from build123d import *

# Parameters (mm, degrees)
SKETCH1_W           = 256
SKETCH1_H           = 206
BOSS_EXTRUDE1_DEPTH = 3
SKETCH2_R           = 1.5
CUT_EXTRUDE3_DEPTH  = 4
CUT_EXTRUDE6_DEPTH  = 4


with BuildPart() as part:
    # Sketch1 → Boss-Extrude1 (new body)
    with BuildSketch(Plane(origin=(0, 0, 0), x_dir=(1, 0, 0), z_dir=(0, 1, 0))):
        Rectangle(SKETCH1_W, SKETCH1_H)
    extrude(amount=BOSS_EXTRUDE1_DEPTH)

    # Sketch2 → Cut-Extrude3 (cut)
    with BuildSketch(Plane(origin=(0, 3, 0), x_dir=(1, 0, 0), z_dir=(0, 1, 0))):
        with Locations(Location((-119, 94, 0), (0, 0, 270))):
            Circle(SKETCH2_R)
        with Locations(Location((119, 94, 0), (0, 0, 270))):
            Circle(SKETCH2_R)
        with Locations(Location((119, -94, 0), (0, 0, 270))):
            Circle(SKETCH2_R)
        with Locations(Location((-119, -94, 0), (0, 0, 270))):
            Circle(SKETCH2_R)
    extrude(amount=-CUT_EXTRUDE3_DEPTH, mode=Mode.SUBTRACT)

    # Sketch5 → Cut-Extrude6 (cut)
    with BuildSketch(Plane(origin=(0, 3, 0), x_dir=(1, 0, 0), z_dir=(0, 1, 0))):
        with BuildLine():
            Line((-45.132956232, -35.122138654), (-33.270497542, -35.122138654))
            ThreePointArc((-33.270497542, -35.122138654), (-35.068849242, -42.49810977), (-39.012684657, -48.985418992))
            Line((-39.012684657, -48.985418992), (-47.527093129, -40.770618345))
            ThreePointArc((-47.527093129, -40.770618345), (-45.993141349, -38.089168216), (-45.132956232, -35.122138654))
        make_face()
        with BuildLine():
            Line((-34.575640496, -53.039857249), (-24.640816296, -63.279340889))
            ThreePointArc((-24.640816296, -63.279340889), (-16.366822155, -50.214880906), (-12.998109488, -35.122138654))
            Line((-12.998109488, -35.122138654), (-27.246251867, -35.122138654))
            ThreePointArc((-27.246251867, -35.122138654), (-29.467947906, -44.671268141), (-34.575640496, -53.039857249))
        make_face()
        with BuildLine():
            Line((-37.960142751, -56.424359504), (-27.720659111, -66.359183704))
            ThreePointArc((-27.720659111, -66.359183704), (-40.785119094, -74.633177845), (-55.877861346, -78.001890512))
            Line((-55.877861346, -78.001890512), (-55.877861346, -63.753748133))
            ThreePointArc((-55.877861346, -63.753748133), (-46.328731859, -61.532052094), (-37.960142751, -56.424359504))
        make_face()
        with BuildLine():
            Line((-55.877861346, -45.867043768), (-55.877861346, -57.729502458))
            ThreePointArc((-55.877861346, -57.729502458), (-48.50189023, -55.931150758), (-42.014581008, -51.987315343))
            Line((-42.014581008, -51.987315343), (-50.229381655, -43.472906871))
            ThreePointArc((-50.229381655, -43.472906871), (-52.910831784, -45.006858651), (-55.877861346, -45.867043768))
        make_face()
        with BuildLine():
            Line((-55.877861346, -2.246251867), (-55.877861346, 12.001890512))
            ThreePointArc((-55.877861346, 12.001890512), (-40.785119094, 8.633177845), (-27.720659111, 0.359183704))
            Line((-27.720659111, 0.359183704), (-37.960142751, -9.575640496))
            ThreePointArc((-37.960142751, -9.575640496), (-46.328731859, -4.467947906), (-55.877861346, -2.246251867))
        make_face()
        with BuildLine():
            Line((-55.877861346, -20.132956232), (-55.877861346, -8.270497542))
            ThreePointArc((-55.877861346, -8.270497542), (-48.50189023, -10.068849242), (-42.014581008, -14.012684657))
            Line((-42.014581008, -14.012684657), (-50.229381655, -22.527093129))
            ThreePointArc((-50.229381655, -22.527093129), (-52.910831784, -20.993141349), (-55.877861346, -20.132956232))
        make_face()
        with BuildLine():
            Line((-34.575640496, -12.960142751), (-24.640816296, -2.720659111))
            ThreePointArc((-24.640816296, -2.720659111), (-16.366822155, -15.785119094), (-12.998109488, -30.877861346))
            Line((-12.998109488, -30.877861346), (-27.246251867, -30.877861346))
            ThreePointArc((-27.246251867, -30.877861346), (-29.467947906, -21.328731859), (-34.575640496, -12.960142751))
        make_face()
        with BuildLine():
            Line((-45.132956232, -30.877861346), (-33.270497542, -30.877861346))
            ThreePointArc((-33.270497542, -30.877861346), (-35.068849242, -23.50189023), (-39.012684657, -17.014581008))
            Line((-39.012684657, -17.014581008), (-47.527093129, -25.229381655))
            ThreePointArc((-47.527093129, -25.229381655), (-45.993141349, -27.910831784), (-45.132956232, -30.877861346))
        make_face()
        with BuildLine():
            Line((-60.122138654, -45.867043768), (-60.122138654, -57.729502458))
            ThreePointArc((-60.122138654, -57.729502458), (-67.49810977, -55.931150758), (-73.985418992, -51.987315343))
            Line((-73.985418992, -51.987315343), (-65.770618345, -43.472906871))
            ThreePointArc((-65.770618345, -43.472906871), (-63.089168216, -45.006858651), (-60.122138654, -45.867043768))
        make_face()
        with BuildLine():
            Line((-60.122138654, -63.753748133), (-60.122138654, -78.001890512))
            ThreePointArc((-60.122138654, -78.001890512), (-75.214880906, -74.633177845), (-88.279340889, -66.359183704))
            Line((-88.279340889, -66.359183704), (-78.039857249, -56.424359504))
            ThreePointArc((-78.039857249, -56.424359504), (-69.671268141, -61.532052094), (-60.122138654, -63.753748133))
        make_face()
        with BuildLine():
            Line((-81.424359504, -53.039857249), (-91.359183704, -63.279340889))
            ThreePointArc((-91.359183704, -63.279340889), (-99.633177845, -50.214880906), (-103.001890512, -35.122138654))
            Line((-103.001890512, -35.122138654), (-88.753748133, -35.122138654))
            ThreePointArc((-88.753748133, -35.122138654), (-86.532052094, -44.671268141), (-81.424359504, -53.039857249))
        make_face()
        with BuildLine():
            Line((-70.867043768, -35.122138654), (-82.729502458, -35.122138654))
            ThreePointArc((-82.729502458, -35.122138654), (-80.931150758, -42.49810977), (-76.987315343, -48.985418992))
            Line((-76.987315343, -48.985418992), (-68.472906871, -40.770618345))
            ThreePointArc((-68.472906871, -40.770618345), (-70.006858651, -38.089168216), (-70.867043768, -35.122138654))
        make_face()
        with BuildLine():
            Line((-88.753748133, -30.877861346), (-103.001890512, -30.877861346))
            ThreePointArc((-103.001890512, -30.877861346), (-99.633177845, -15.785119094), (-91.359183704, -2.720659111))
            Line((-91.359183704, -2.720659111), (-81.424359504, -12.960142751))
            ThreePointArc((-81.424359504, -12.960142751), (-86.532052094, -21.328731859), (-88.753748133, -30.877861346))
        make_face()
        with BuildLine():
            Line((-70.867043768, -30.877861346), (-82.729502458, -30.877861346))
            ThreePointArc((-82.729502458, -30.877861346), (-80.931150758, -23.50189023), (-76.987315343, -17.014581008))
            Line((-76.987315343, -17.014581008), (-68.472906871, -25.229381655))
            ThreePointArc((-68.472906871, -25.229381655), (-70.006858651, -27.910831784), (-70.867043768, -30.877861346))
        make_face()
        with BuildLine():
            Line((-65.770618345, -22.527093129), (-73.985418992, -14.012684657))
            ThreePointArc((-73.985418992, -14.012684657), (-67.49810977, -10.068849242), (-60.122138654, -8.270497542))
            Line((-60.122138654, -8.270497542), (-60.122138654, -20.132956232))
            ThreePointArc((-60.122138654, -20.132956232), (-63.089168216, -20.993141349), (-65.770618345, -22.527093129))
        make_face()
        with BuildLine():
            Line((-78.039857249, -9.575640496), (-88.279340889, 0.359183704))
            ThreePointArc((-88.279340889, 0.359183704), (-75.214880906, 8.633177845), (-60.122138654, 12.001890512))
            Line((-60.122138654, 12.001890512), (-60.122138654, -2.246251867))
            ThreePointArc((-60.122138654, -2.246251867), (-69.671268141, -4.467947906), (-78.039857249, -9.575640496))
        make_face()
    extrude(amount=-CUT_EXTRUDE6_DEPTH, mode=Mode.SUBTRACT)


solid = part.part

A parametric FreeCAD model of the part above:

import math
import FreeCAD as App
import Part
import Sketcher

V = App.Vector

doc = App.newDocument("Part")
body = doc.addObject("PartDesign::Body", "Body")

# Sketch on XZ plane
sketch1 = body.newObject("Sketcher::SketchObject", "Sketch")
sketch1.AttachmentSupport = (doc.getObject("XZ_Plane"), [""])
sketch1.MapMode = "FlatFace"
sketch1.addGeometry(Part.LineSegment(V(-128, -103, 0), V(-128, 103, 0)), False)
sketch1.addGeometry(Part.LineSegment(V(-128, 103, 0), V(128, 103, 0)), False)
sketch1.addGeometry(Part.LineSegment(V(128, 103, 0), V(128, -103, 0)), False)
sketch1.addGeometry(Part.LineSegment(V(128, -103, 0), V(-128, -103, 0)), False)
sketch1.addConstraint(Sketcher.Constraint("Coincident", 0, 2, 1, 1))
sketch1.addConstraint(Sketcher.Constraint("Coincident", 1, 2, 2, 1))
sketch1.addConstraint(Sketcher.Constraint("Coincident", 2, 2, 3, 1))
sketch1.addConstraint(Sketcher.Constraint("Coincident", 3, 2, 0, 1))
sketch1.addConstraint(Sketcher.Constraint("Vertical", 0))
sketch1.addConstraint(Sketcher.Constraint("Horizontal", 1))
sketch1.addConstraint(Sketcher.Constraint("Vertical", 2))
sketch1.addConstraint(Sketcher.Constraint("Horizontal", 3))
sketch1.addConstraint(Sketcher.Constraint("Symmetric", 0, 2, 2, 2, -1, 1))
sketch1.addConstraint(Sketcher.Constraint("DistanceX", 1, 1, 1, 2, 256.0))
sketch1.addConstraint(Sketcher.Constraint("DistanceY", 0, 1, 0, 2, 206.0))
pad1 = body.newObject("PartDesign::Pad", "Pad")
pad1.Profile = sketch1
pad1.Length = 3
pad1.Reversed = True

# Sketch on XZ plane
sketch2 = body.newObject("Sketcher::SketchObject", "Sketch001")
sketch2.AttachmentSupport = (doc.getObject("XZ_Plane"), [""])
sketch2.MapMode = "FlatFace"
sketch2.AttachmentOffset = App.Placement(V(0, 0, -3), App.Rotation())
sketch2.addGeometry(Part.Circle(V(-119, -94, 0), V(0, 0, 1), 1.5), False)
sketch2.addGeometry(Part.Circle(V(119, -94, 0), V(0, 0, 1), 1.5), False)
sketch2.addGeometry(Part.Circle(V(119, 94, 0), V(0, 0, 1), 1.5), False)
sketch2.addGeometry(Part.Circle(V(-119, 94, 0), V(0, 0, 1), 1.5), False)
sketch2.addConstraint(Sketcher.Constraint("Equal", 0, 1))
sketch2.addConstraint(Sketcher.Constraint("Equal", 1, 2))
sketch2.addConstraint(Sketcher.Constraint("Equal", 2, 3))
sketch2.addConstraint(Sketcher.Constraint("Symmetric", 0, 3, 2, 3, -1, 1))
sketch2.addConstraint(Sketcher.Constraint("Symmetric", 1, 3, 3, 3, -1, 1))
sketch2.addConstraint(Sketcher.Constraint("Symmetric", 0, 3, 1, 3, -2))
sketch2.addConstraint(Sketcher.Constraint("Diameter", 0, 3.0))
sketch2.addConstraint(Sketcher.Constraint("DistanceX", 0, 3, -1, 1, 119.0))
sketch2.addConstraint(Sketcher.Constraint("DistanceY", 0, 3, -1, 1, 94.0))
pocket1 = body.newObject("PartDesign::Pocket", "Pocket")
pocket1.Profile = sketch2
pocket1.Length = 4
pocket1.Reversed = True

# Sketch on XZ plane
sketch3 = body.newObject("Sketcher::SketchObject", "Sketch002")
sketch3.AttachmentSupport = (doc.getObject("XZ_Plane"), [""])
sketch3.MapMode = "FlatFace"
sketch3.AttachmentOffset = App.Placement(V(0, 0, -3), App.Rotation())
sketch3.addGeometry(Part.LineSegment(V(-33, 35, 0), V(-45, 35, 0)), False)
sketch3.addGeometry(Part.ArcOfCircle(Part.Circle(V(-58, 33, 0), V(0, 0, 1), 13), math.radians(9), math.radians(37)), False)
sketch3.addGeometry(Part.LineSegment(V(-48, 41, 0), V(-39, 49, 0)), False)
sketch3.addGeometry(Part.ArcOfCircle(Part.Circle(V(-58, 33, 0), V(0, 0, 1), 25), math.radians(5), math.radians(40)), False)
sketch3.addGeometry(Part.LineSegment(V(-35, 53, 0), V(-25, 63, 0)), False)
sketch3.addGeometry(Part.ArcOfCircle(Part.Circle(V(-58, 33, 0), V(0, 0, 1), 45), math.radians(3), math.radians(42)), False)
sketch3.addGeometry(Part.LineSegment(V(-13, 35, 0), V(-27, 35, 0)), False)
sketch3.addGeometry(Part.ArcOfCircle(Part.Circle(V(-58, 33, 0), V(0, 0, 1), 31), math.radians(4), math.radians(41)), False)
sketch3.addGeometry(Part.LineSegment(V(-28, 66, 0), V(-38, 56, 0)), False)
sketch3.addGeometry(Part.ArcOfCircle(Part.Circle(V(-58, 33, 0), V(0, 0, 1), 31), math.radians(49), math.radians(86)), False)
sketch3.addGeometry(Part.LineSegment(V(-56, 64, 0), V(-56, 78, 0)), False)
sketch3.addGeometry(Part.ArcOfCircle(Part.Circle(V(-58, 33, 0), V(0, 0, 1), 45), math.radians(48), math.radians(87)), False)
sketch3.addGeometry(Part.LineSegment(V(-56, 46, 0), V(-56, 58, 0)), False)
sketch3.addGeometry(Part.ArcOfCircle(Part.Circle(V(-58, 33, 0), V(0, 0, 1), 25), math.radians(50), math.radians(85)), False)
sketch3.addGeometry(Part.LineSegment(V(-42, 52, 0), V(-50, 43, 0)), False)
sketch3.addGeometry(Part.ArcOfCircle(Part.Circle(V(-58, 33, 0), V(0, 0, 1), 13), math.radians(53), math.radians(81)), False)
sketch3.addGeometry(Part.LineSegment(V(-56, -12, 0), V(-56, 2, 0)), False)
sketch3.addGeometry(Part.ArcOfCircle(Part.Circle(V(-58, 33, 0), V(0, 0, 1), 31), math.radians(-86), math.radians(-49)), False)
sketch3.addGeometry(Part.LineSegment(V(-38, 10, 0), V(-28, 0, 0)), False)
sketch3.addGeometry(Part.ArcOfCircle(Part.Circle(V(-58, 33, 0), V(0, 0, 1), 45), math.radians(-87), math.radians(-48)), False)
sketch3.addGeometry(Part.LineSegment(V(-56, 8, 0), V(-56, 20, 0)), False)
sketch3.addGeometry(Part.ArcOfCircle(Part.Circle(V(-58, 33, 0), V(0, 0, 1), 13), math.radians(-81), math.radians(-53)), False)
sketch3.addGeometry(Part.LineSegment(V(-50, 23, 0), V(-42, 14, 0)), False)
sketch3.addGeometry(Part.ArcOfCircle(Part.Circle(V(-58, 33, 0), V(0, 0, 1), 25), math.radians(-85), math.radians(-50)), False)
sketch3.addGeometry(Part.LineSegment(V(-25, 3, 0), V(-35, 13, 0)), False)
sketch3.addGeometry(Part.ArcOfCircle(Part.Circle(V(-58, 33, 0), V(0, 0, 1), 31), math.radians(-41), math.radians(-4)), False)
sketch3.addGeometry(Part.LineSegment(V(-27, 31, 0), V(-13, 31, 0)), False)
sketch3.addGeometry(Part.ArcOfCircle(Part.Circle(V(-58, 33, 0), V(0, 0, 1), 45), math.radians(-42), math.radians(-3)), False)
sketch3.addGeometry(Part.LineSegment(V(-45, 31, 0), V(-33, 31, 0)), False)
sketch3.addGeometry(Part.ArcOfCircle(Part.Circle(V(-58, 33, 0), V(0, 0, 1), 25), math.radians(-40), math.radians(-5)), False)
sketch3.addGeometry(Part.LineSegment(V(-39, 17, 0), V(-48, 25, 0)), False)
sketch3.addGeometry(Part.ArcOfCircle(Part.Circle(V(-58, 33, 0), V(0, 0, 1), 13), math.radians(-37), math.radians(-9)), False)
sketch3.addGeometry(Part.LineSegment(V(-60, 58, 0), V(-60, 46, 0)), False)
sketch3.addGeometry(Part.ArcOfCircle(Part.Circle(V(-58, 33, 0), V(0, 0, 1), 13), math.radians(99), math.radians(127)), False)
sketch3.addGeometry(Part.LineSegment(V(-66, 43, 0), V(-74, 52, 0)), False)
sketch3.addGeometry(Part.ArcOfCircle(Part.Circle(V(-58, 33, 0), V(0, 0, 1), 25), math.radians(95), math.radians(130)), False)
sketch3.addGeometry(Part.LineSegment(V(-60, 78, 0), V(-60, 64, 0)), False)
sketch3.addGeometry(Part.ArcOfCircle(Part.Circle(V(-58, 33, 0), V(0, 0, 1), 31), math.radians(94), math.radians(131)), False)
sketch3.addGeometry(Part.LineSegment(V(-78, 56, 0), V(-88, 66, 0)), False)
sketch3.addGeometry(Part.ArcOfCircle(Part.Circle(V(-58, 33, 0), V(0, 0, 1), 45), math.radians(93), math.radians(132)), False)
sketch3.addGeometry(Part.LineSegment(V(-91, 63, 0), V(-81, 53, 0)), False)
sketch3.addGeometry(Part.ArcOfCircle(Part.Circle(V(-58, 33, 0), V(0, 0, 1), 31), math.radians(139), math.radians(176)), False)
sketch3.addGeometry(Part.LineSegment(V(-89, 35, 0), V(-103, 35, 0)), False)
sketch3.addGeometry(Part.ArcOfCircle(Part.Circle(V(-58, 33, 0), V(0, 0, 1), 45), math.radians(138), math.radians(177)), False)
sketch3.addGeometry(Part.LineSegment(V(-71, 35, 0), V(-83, 35, 0)), False)
sketch3.addGeometry(Part.ArcOfCircle(Part.Circle(V(-58, 33, 0), V(0, 0, 1), 25), math.radians(140), math.radians(175)), False)
sketch3.addGeometry(Part.LineSegment(V(-77, 49, 0), V(-68, 41, 0)), False)
sketch3.addGeometry(Part.ArcOfCircle(Part.Circle(V(-58, 33, 0), V(0, 0, 1), 13), math.radians(143), math.radians(171)), False)
sketch3.addGeometry(Part.LineSegment(V(-103, 31, 0), V(-89, 31, 0)), False)
sketch3.addGeometry(Part.ArcOfCircle(Part.Circle(V(-58, 33, 0), V(0, 0, 1), 31), math.radians(-176), math.radians(-139)), False)
sketch3.addGeometry(Part.LineSegment(V(-81, 13, 0), V(-91, 3, 0)), False)
sketch3.addGeometry(Part.ArcOfCircle(Part.Circle(V(-58, 33, 0), V(0, 0, 1), 45), math.radians(-177), math.radians(-138)), False)
sketch3.addGeometry(Part.LineSegment(V(-83, 31, 0), V(-71, 31, 0)), False)
sketch3.addGeometry(Part.ArcOfCircle(Part.Circle(V(-58, 33, 0), V(0, 0, 1), 13), math.radians(-171), math.radians(-143)), False)
sketch3.addGeometry(Part.LineSegment(V(-68, 25, 0), V(-77, 17, 0)), False)
sketch3.addGeometry(Part.ArcOfCircle(Part.Circle(V(-58, 33, 0), V(0, 0, 1), 25), math.radians(-175), math.radians(-140)), False)
sketch3.addGeometry(Part.LineSegment(V(-74, 14, 0), V(-66, 23, 0)), False)
sketch3.addGeometry(Part.ArcOfCircle(Part.Circle(V(-58, 33, 0), V(0, 0, 1), 13), math.radians(-127), math.radians(-99)), False)
sketch3.addGeometry(Part.LineSegment(V(-60, 20, 0), V(-60, 8, 0)), False)
sketch3.addGeometry(Part.ArcOfCircle(Part.Circle(V(-58, 33, 0), V(0, 0, 1), 25), math.radians(-130), math.radians(-95)), False)
sketch3.addGeometry(Part.LineSegment(V(-88, 0, 0), V(-78, 10, 0)), False)
sketch3.addGeometry(Part.ArcOfCircle(Part.Circle(V(-58, 33, 0), V(0, 0, 1), 31), math.radians(-131), math.radians(-94)), False)
sketch3.addGeometry(Part.LineSegment(V(-60, 2, 0), V(-60, -12, 0)), False)
sketch3.addGeometry(Part.ArcOfCircle(Part.Circle(V(-58, 33, 0), V(0, 0, 1), 45), math.radians(-132), math.radians(-93)), False)
sketch3.addConstraint(Sketcher.Constraint("Coincident", 0, 2, 1, 1))
sketch3.addConstraint(Sketcher.Constraint("Coincident", 1, 2, 2, 1))
sketch3.addConstraint(Sketcher.Constraint("Coincident", 2, 2, 3, 2))
sketch3.addConstraint(Sketcher.Constraint("Coincident", 3, 1, 0, 1))
sketch3.addConstraint(Sketcher.Constraint("Coincident", 4, 2, 5, 2))
sketch3.addConstraint(Sketcher.Constraint("Coincident", 5, 1, 6, 1))
sketch3.addConstraint(Sketcher.Constraint("Coincident", 6, 2, 7, 1))
sketch3.addConstraint(Sketcher.Constraint("Coincident", 7, 2, 4, 1))
sketch3.addConstraint(Sketcher.Constraint("Coincident", 8, 2, 9, 1))
sketch3.addConstraint(Sketcher.Constraint("Coincident", 9, 2, 10, 1))
sketch3.addConstraint(Sketcher.Constraint("Coincident", 10, 2, 11, 2))
sketch3.addConstraint(Sketcher.Constraint("Coincident", 11, 1, 8, 1))
sketch3.addConstraint(Sketcher.Constraint("Coincident", 12, 2, 13, 2))
sketch3.addConstraint(Sketcher.Constraint("Coincident", 13, 1, 14, 1))
sketch3.addConstraint(Sketcher.Constraint("Coincident", 14, 2, 15, 1))
sketch3.addConstraint(Sketcher.Constraint("Coincident", 15, 2, 12, 1))
sketch3.addConstraint(Sketcher.Constraint("Coincident", 16, 2, 17, 1))
sketch3.addConstraint(Sketcher.Constraint("Coincident", 17, 2, 18, 1))
sketch3.addConstraint(Sketcher.Constraint("Coincident", 18, 2, 19, 2))
sketch3.addConstraint(Sketcher.Constraint("Coincident", 19, 1, 16, 1))
sketch3.addConstraint(Sketcher.Constraint("Coincident", 20, 2, 21, 1))
sketch3.addConstraint(Sketcher.Constraint("Coincident", 21, 2, 22, 1))
sketch3.addConstraint(Sketcher.Constraint("Coincident", 22, 2, 23, 2))
sketch3.addConstraint(Sketcher.Constraint("Coincident", 23, 1, 20, 1))
sketch3.addConstraint(Sketcher.Constraint("Coincident", 24, 2, 25, 1))
sketch3.addConstraint(Sketcher.Constraint("Coincident", 25, 2, 26, 1))
sketch3.addConstraint(Sketcher.Constraint("Coincident", 26, 2, 27, 2))
sketch3.addConstraint(Sketcher.Constraint("Coincident", 27, 1, 24, 1))
sketch3.addConstraint(Sketcher.Constraint("Coincident", 28, 2, 29, 2))
sketch3.addConstraint(Sketcher.Constraint("Coincident", 29, 1, 30, 1))
sketch3.addConstraint(Sketcher.Constraint("Coincident", 30, 2, 31, 1))
sketch3.addConstraint(Sketcher.Constraint("Coincident", 31, 2, 28, 1))
sketch3.addConstraint(Sketcher.Constraint("Coincident", 32, 2, 33, 1))
sketch3.addConstraint(Sketcher.Constraint("Coincident", 33, 2, 34, 1))
sketch3.addConstraint(Sketcher.Constraint("Coincident", 34, 2, 35, 2))
sketch3.addConstraint(Sketcher.Constraint("Coincident", 35, 1, 32, 1))
sketch3.addConstraint(Sketcher.Constraint("Coincident", 36, 2, 37, 1))
sketch3.addConstraint(Sketcher.Constraint("Coincident", 37, 2, 38, 1))
sketch3.addConstraint(Sketcher.Constraint("Coincident", 38, 2, 39, 2))
sketch3.addConstraint(Sketcher.Constraint("Coincident", 39, 1, 36, 1))
sketch3.addConstraint(Sketcher.Constraint("Coincident", 40, 2, 41, 1))
sketch3.addConstraint(Sketcher.Constraint("Coincident", 41, 2, 42, 1))
sketch3.addConstraint(Sketcher.Constraint("Coincident", 42, 2, 43, 2))
sketch3.addConstraint(Sketcher.Constraint("Coincident", 43, 1, 40, 1))
sketch3.addConstraint(Sketcher.Constraint("Coincident", 44, 2, 45, 2))
sketch3.addConstraint(Sketcher.Constraint("Coincident", 45, 1, 46, 1))
sketch3.addConstraint(Sketcher.Constraint("Coincident", 46, 2, 47, 1))
sketch3.addConstraint(Sketcher.Constraint("Coincident", 47, 2, 44, 1))
sketch3.addConstraint(Sketcher.Constraint("Coincident", 48, 2, 49, 1))
sketch3.addConstraint(Sketcher.Constraint("Coincident", 49, 2, 50, 1))
sketch3.addConstraint(Sketcher.Constraint("Coincident", 50, 2, 51, 2))
sketch3.addConstraint(Sketcher.Constraint("Coincident", 51, 1, 48, 1))
sketch3.addConstraint(Sketcher.Constraint("Coincident", 52, 2, 53, 1))
sketch3.addConstraint(Sketcher.Constraint("Coincident", 53, 2, 54, 1))
sketch3.addConstraint(Sketcher.Constraint("Coincident", 54, 2, 55, 2))
sketch3.addConstraint(Sketcher.Constraint("Coincident", 55, 1, 52, 1))
sketch3.addConstraint(Sketcher.Constraint("Coincident", 56, 2, 57, 1))
sketch3.addConstraint(Sketcher.Constraint("Coincident", 57, 2, 58, 1))
sketch3.addConstraint(Sketcher.Constraint("Coincident", 58, 2, 59, 2))
sketch3.addConstraint(Sketcher.Constraint("Coincident", 59, 1, 56, 1))
sketch3.addConstraint(Sketcher.Constraint("Coincident", 60, 2, 61, 1))
sketch3.addConstraint(Sketcher.Constraint("Coincident", 61, 2, 62, 1))
sketch3.addConstraint(Sketcher.Constraint("Coincident", 62, 2, 63, 2))
sketch3.addConstraint(Sketcher.Constraint("Coincident", 63, 1, 60, 1))
sketch3.addConstraint(Sketcher.Constraint("Horizontal", 0))
sketch3.addConstraint(Sketcher.Constraint("Horizontal", 6))
sketch3.addConstraint(Sketcher.Constraint("Vertical", 10))
sketch3.addConstraint(Sketcher.Constraint("Vertical", 12))
sketch3.addConstraint(Sketcher.Constraint("Vertical", 16))
sketch3.addConstraint(Sketcher.Constraint("Vertical", 20))
sketch3.addConstraint(Sketcher.Constraint("Horizontal", 26))
sketch3.addConstraint(Sketcher.Constraint("Horizontal", 28))
sketch3.addConstraint(Sketcher.Constraint("Vertical", 32))
sketch3.addConstraint(Sketcher.Constraint("Vertical", 36))
sketch3.addConstraint(Sketcher.Constraint("Horizontal", 42))
sketch3.addConstraint(Sketcher.Constraint("Horizontal", 44))
sketch3.addConstraint(Sketcher.Constraint("Horizontal", 48))
sketch3.addConstraint(Sketcher.Constraint("Horizontal", 52))
sketch3.addConstraint(Sketcher.Constraint("Vertical", 58))
sketch3.addConstraint(Sketcher.Constraint("Vertical", 62))
sketch3.addConstraint(Sketcher.Constraint("Coincident", 3, 3, 1, 3))
sketch3.addConstraint(Sketcher.Constraint("Coincident", 5, 3, 1, 3))
sketch3.addConstraint(Sketcher.Constraint("Coincident", 7, 3, 1, 3))
sketch3.addConstraint(Sketcher.Constraint("Coincident", 9, 3, 1, 3))
sketch3.addConstraint(Sketcher.Constraint("Coincident", 11, 3, 1, 3))
sketch3.addConstraint(Sketcher.Constraint("Coincident", 13, 3, 1, 3))
sketch3.addConstraint(Sketcher.Constraint("Coincident", 15, 3, 1, 3))
sketch3.addConstraint(Sketcher.Constraint("Coincident", 17, 3, 1, 3))
sketch3.addConstraint(Sketcher.Constraint("Coincident", 19, 3, 1, 3))
sketch3.addConstraint(Sketcher.Constraint("Coincident", 21, 3, 1, 3))
sketch3.addConstraint(Sketcher.Constraint("Coincident", 23, 3, 1, 3))
sketch3.addConstraint(Sketcher.Constraint("Coincident", 25, 3, 1, 3))
sketch3.addConstraint(Sketcher.Constraint("Coincident", 27, 3, 1, 3))
sketch3.addConstraint(Sketcher.Constraint("Coincident", 29, 3, 1, 3))
sketch3.addConstraint(Sketcher.Constraint("Coincident", 31, 3, 1, 3))
sketch3.addConstraint(Sketcher.Constraint("Coincident", 33, 3, 1, 3))
sketch3.addConstraint(Sketcher.Constraint("Coincident", 35, 3, 1, 3))
sketch3.addConstraint(Sketcher.Constraint("Coincident", 37, 3, 1, 3))
sketch3.addConstraint(Sketcher.Constraint("Coincident", 39, 3, 1, 3))
sketch3.addConstraint(Sketcher.Constraint("Coincident", 41, 3, 1, 3))
sketch3.addConstraint(Sketcher.Constraint("Coincident", 43, 3, 1, 3))
sketch3.addConstraint(Sketcher.Constraint("Coincident", 45, 3, 1, 3))
sketch3.addConstraint(Sketcher.Constraint("Coincident", 47, 3, 1, 3))
sketch3.addConstraint(Sketcher.Constraint("Coincident", 49, 3, 1, 3))
sketch3.addConstraint(Sketcher.Constraint("Coincident", 51, 3, 1, 3))
sketch3.addConstraint(Sketcher.Constraint("Coincident", 53, 3, 1, 3))
sketch3.addConstraint(Sketcher.Constraint("Coincident", 55, 3, 1, 3))
sketch3.addConstraint(Sketcher.Constraint("Coincident", 57, 3, 1, 3))
sketch3.addConstraint(Sketcher.Constraint("Coincident", 59, 3, 1, 3))
sketch3.addConstraint(Sketcher.Constraint("Coincident", 61, 3, 1, 3))
sketch3.addConstraint(Sketcher.Constraint("Coincident", 63, 3, 1, 3))
sketch3.addConstraint(Sketcher.Constraint("Equal", 7, 9))
sketch3.addConstraint(Sketcher.Constraint("Equal", 5, 11))
sketch3.addConstraint(Sketcher.Constraint("Equal", 3, 13))
sketch3.addConstraint(Sketcher.Constraint("Equal", 1, 15))
sketch3.addConstraint(Sketcher.Constraint("Equal", 9, 17))
sketch3.addConstraint(Sketcher.Constraint("Equal", 11, 19))
sketch3.addConstraint(Sketcher.Constraint("Equal", 15, 21))
sketch3.addConstraint(Sketcher.Constraint("Equal", 13, 23))
sketch3.addConstraint(Sketcher.Constraint("Equal", 17, 25))
sketch3.addConstraint(Sketcher.Constraint("Equal", 19, 27))
sketch3.addConstraint(Sketcher.Constraint("Equal", 23, 29))
sketch3.addConstraint(Sketcher.Constraint("Equal", 21, 31))
sketch3.addConstraint(Sketcher.Constraint("Equal", 31, 33))
sketch3.addConstraint(Sketcher.Constraint("Equal", 29, 35))
sketch3.addConstraint(Sketcher.Constraint("Equal", 25, 37))
sketch3.addConstraint(Sketcher.Constraint("Equal", 27, 39))
sketch3.addConstraint(Sketcher.Constraint("Equal", 37, 41))
sketch3.addConstraint(Sketcher.Constraint("Equal", 39, 43))
sketch3.addConstraint(Sketcher.Constraint("Equal", 35, 45))
sketch3.addConstraint(Sketcher.Constraint("Equal", 33, 47))
sketch3.addConstraint(Sketcher.Constraint("Equal", 41, 49))
sketch3.addConstraint(Sketcher.Constraint("Equal", 43, 51))
sketch3.addConstraint(Sketcher.Constraint("Equal", 47, 53))
sketch3.addConstraint(Sketcher.Constraint("Equal", 45, 55))
sketch3.addConstraint(Sketcher.Constraint("Equal", 53, 57))
sketch3.addConstraint(Sketcher.Constraint("Equal", 55, 59))
sketch3.addConstraint(Sketcher.Constraint("Equal", 49, 61))
sketch3.addConstraint(Sketcher.Constraint("Equal", 51, 63))
sketch3.addConstraint(Sketcher.Constraint("Perpendicular", 4, 18))
sketch3.addConstraint(Sketcher.Constraint("Perpendicular", 2, 22))
sketch3.addConstraint(Sketcher.Constraint("Perpendicular", 8, 24))
sketch3.addConstraint(Sketcher.Constraint("Perpendicular", 14, 30))
sketch3.addConstraint(Sketcher.Constraint("Parallel", 22, 34))
sketch3.addConstraint(Sketcher.Constraint("Parallel", 18, 38))
sketch3.addConstraint(Sketcher.Constraint("Parallel", 24, 40))
sketch3.addConstraint(Sketcher.Constraint("Parallel", 30, 46))
sketch3.addConstraint(Sketcher.Constraint("Perpendicular", 38, 50))
sketch3.addConstraint(Sketcher.Constraint("Perpendicular", 34, 54))
sketch3.addConstraint(Sketcher.Constraint("Perpendicular", 46, 56))
sketch3.addConstraint(Sketcher.Constraint("Perpendicular", 40, 60))
sketch3.addConstraint(Sketcher.Constraint("Horizontal", 3, 1, 5, 1))
sketch3.addConstraint(Sketcher.Constraint("Horizontal", 26, 2, 28, 2))
sketch3.addConstraint(Sketcher.Constraint("Horizontal", 15, 2, 32, 2))
sketch3.addConstraint(Sketcher.Constraint("Horizontal", 14, 2, 33, 2))
sketch3.addConstraint(Sketcher.Constraint("Horizontal", 13, 1, 34, 2))
sketch3.addConstraint(Sketcher.Constraint("Horizontal", 9, 2, 36, 2))
sketch3.addConstraint(Sketcher.Constraint("Horizontal", 8, 2, 37, 2))
sketch3.addConstraint(Sketcher.Constraint("Horizontal", 11, 1, 38, 2))
sketch3.addConstraint(Sketcher.Constraint("Horizontal", 7, 2, 40, 2))
sketch3.addConstraint(Sketcher.Constraint("Horizontal", 6, 2, 41, 2))
sketch3.addConstraint(Sketcher.Constraint("Horizontal", 42, 2, 44, 2))
sketch3.addConstraint(Sketcher.Constraint("Horizontal", 2, 2, 45, 1))
sketch3.addConstraint(Sketcher.Constraint("Horizontal", 31, 2, 48, 2))
sketch3.addConstraint(Sketcher.Constraint("Horizontal", 24, 2, 49, 2))
sketch3.addConstraint(Sketcher.Constraint("Horizontal", 51, 1, 52, 2))
sketch3.addConstraint(Sketcher.Constraint("Horizontal", 30, 2, 53, 2))
sketch3.addConstraint(Sketcher.Constraint("Horizontal", 21, 2, 56, 2))
sketch3.addConstraint(Sketcher.Constraint("Horizontal", 20, 2, 57, 2))
sketch3.addConstraint(Sketcher.Constraint("Horizontal", 17, 2, 60, 2))
sketch3.addConstraint(Sketcher.Constraint("Horizontal", 16, 2, 61, 2))
sketch3.addConstraint(Sketcher.Constraint("Vertical", 10, 2, 12, 2))
sketch3.addConstraint(Sketcher.Constraint("Vertical", 15, 2, 16, 2))
sketch3.addConstraint(Sketcher.Constraint("Vertical", 8, 2, 17, 2))
sketch3.addConstraint(Sketcher.Constraint("Vertical", 19, 1, 20, 2))
sketch3.addConstraint(Sketcher.Constraint("Vertical", 14, 2, 21, 2))
sketch3.addConstraint(Sketcher.Constraint("Vertical", 7, 2, 24, 2))
sketch3.addConstraint(Sketcher.Constraint("Vertical", 6, 2, 25, 2))
sketch3.addConstraint(Sketcher.Constraint("Vertical", 2, 2, 29, 1))
sketch3.addConstraint(Sketcher.Constraint("Equal", 48, 10))
sketch3.addConstraint(Sketcher.Constraint("Equal", 4, 8))
sketch3.addConstraint(Sketcher.Constraint("Equal", 2, 14))
sketch3.addConstraint(Sketcher.Constraint("DistanceX", 1, 3, -1, 1, 58.0))
sketch3.addConstraint(Sketcher.Constraint("DistanceY", -1, 1, 1, 3, 33.0))
sketch3.addConstraint(Sketcher.Constraint("Radius", 5, 45.051899))
sketch3.addConstraint(Sketcher.Constraint("Radius", 1, 13.04087))
sketch3.addConstraint(Sketcher.Constraint("Radius", 3, 24.82039))
sketch3.addConstraint(Sketcher.Constraint("Radius", 7, 30.826879))
sketch3.addConstraint(Sketcher.Constraint("DistanceX", 0, 2, 0, 1, 11.862459))
sketch3.addConstraint(Sketcher.Constraint("DistanceY", -1, 1, 1, 2, 40.770618))
sketch3.addConstraint(Sketcher.Constraint("DistanceY", -1, 1, 2, 2, 48.985419))
sketch3.addConstraint(Sketcher.Constraint("DistanceY", -1, 1, 4, 2, 63.279341))
sketch3.addConstraint(Sketcher.Constraint("DistanceX", 7, 2, -1, 1, 34.57564))
pocket2 = body.newObject("PartDesign::Pocket", "Pocket001")
pocket2.Profile = sketch3
pocket2.Length = 4
pocket2.Reversed = True

doc.recompute()
